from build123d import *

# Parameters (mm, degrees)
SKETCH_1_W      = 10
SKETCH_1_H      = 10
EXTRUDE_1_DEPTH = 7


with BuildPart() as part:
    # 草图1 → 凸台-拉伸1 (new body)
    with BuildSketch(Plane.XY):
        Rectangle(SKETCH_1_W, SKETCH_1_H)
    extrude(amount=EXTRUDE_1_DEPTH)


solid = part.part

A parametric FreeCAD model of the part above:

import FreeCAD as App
import Part
import Sketcher
from FreeCAD import Vector

doc = App.newDocument("Part")
body = doc.addObject("PartDesign::Body", "Body")

sketch1 = doc.addObject("Sketcher::SketchObject", "Sketch")
body.addObject(sketch1)
sketch1.AttachmentSupport = (doc.XY_Plane, [""])
sketch1.MapMode = "FlatFace"
sketch1.addGeometry([
    Part.LineSegment(Vector(-5, 5, 0), Vector(-5, -5, 0)),
    Part.LineSegment(Vector(-5, -5, 0), Vector(5, -5, 0)),
    Part.LineSegment(Vector(5, -5, 0), Vector(5, 5, 0)),
    Part.LineSegment(Vector(5, 5, 0), Vector(-5, 5, 0)),
], False)
sketch1.addConstraint([
    Sketcher.Constraint("Coincident", 0, 2, 1, 1),
    Sketcher.Constraint("Coincident", 1, 2, 2, 1),
    Sketcher.Constraint("Coincident", 2, 2, 3, 1),
    Sketcher.Constraint("Coincident", 3, 2, 0, 1),
    Sketcher.Constraint("Vertical", 0),
    Sketcher.Constraint("Horizontal", 1),
    Sketcher.Constraint("Vertical", 2),
    Sketcher.Constraint("Horizontal", 3),
    Sketcher.Constraint("Symmetric", 0, 2, 2, 2, -1, 1),
    Sketcher.Constraint("Equal", 3, 0),
    Sketcher.Constraint("DistanceX", 1, 1, 1, 2, 10.0),
])
pad1 = doc.addObject("PartDesign::Pad", "Pad")
body.addObject(pad1)
pad1.Profile = sketch1
pad1.Length = 7

doc.recompute()
